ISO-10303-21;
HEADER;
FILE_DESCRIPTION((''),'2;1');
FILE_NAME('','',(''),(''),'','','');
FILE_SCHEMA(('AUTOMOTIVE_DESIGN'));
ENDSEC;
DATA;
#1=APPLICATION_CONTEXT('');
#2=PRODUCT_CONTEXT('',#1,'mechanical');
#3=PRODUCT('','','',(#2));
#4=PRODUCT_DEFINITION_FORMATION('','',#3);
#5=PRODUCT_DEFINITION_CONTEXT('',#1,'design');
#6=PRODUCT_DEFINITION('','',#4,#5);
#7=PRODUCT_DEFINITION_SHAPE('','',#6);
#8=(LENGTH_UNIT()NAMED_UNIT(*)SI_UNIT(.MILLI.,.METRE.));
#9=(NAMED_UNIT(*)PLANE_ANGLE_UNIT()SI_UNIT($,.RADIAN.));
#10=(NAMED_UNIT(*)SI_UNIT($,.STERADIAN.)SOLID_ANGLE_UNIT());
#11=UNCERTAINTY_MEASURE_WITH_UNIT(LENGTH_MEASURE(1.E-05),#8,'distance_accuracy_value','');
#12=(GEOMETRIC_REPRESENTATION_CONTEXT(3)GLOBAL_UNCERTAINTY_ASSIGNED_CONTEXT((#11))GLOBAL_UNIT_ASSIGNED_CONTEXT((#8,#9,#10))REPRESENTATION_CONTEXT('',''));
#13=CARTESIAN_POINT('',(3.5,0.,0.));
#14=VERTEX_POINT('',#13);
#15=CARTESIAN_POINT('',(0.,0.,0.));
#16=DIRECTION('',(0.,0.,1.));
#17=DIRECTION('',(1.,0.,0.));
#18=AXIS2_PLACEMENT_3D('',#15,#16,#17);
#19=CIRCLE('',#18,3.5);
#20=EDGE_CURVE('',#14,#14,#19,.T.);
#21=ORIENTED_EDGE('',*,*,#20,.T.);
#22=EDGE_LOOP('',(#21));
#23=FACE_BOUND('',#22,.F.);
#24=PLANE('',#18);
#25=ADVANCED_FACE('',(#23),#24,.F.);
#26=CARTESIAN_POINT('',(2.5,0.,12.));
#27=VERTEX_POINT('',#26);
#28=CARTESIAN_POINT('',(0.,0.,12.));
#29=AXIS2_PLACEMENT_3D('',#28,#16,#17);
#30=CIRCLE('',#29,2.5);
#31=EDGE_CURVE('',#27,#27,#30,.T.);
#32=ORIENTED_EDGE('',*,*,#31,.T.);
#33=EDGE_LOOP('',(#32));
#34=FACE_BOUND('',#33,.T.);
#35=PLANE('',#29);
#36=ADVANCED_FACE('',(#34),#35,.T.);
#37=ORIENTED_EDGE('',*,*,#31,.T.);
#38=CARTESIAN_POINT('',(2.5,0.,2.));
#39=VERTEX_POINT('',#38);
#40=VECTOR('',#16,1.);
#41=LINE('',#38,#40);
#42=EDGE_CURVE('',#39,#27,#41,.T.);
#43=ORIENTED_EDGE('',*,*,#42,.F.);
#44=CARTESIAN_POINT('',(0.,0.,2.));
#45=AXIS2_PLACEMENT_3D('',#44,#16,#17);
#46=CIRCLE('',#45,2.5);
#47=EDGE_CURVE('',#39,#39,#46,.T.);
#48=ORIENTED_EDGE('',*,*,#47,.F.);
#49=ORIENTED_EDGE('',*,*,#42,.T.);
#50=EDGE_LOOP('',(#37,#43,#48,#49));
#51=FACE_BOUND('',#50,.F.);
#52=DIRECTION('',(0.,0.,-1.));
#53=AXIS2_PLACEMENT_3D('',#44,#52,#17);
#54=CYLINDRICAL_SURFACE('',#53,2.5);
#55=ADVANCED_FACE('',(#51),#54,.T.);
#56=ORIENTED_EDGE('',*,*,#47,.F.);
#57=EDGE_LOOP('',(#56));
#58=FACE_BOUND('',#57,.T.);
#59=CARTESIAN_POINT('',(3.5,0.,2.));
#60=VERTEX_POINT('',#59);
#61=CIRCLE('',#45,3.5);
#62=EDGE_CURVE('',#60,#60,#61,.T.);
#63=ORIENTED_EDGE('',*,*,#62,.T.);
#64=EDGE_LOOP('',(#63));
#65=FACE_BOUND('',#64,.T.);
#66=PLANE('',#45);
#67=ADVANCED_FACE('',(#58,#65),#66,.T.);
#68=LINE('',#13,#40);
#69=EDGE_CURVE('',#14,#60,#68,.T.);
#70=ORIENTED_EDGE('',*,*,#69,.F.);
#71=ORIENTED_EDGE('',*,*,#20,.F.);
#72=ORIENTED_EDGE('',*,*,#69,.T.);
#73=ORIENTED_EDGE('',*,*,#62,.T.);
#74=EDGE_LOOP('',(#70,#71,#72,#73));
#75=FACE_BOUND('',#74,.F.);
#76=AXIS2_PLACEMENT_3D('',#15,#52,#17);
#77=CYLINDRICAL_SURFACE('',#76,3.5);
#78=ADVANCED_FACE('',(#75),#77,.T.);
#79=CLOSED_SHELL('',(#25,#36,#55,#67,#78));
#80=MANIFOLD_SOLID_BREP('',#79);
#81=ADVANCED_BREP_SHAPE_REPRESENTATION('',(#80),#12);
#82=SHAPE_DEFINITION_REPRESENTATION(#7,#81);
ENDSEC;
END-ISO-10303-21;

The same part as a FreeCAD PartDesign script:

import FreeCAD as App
import Part
import Sketcher
from FreeCAD import Vector

doc = App.newDocument("Part")
params = doc.addObject("Spreadsheet::Sheet", "Params")
for row, (alias, value) in enumerate([
    ("sketch1_diameter", "7 mm"),
    ("pad1_length", "2 mm"),
    ("sketch2_diameter", "5 mm"),
    ("pad2_length", "10 mm"),
], start=1):
    params.set(f"A{row}", alias)
    params.set(f"B{row}", "=" + value)
    params.setAlias(f"B{row}", alias)

body = doc.addObject("PartDesign::Body", "Body")

sketch1 = doc.addObject("Sketcher::SketchObject", "Sketch")
body.addObject(sketch1)
sketch1.AttachmentSupport = (doc.XY_Plane, [""])
sketch1.MapMode = "FlatFace"
sketch1.addGeometry(Part.Circle(Vector(0, 0, 0), Vector(0, 0, 1), 3.5), False)
sketch1.addConstraint([
    Sketcher.Constraint("Coincident", 0, 3, -1, 1),
    Sketcher.Constraint("Diameter", 0, 7.0),
])
sketch1.setExpression("Constraints[1]", "Params.sketch1_diameter")
pad1 = doc.addObject("PartDesign::Pad", "Pad")
body.addObject(pad1)
pad1.Profile = sketch1
pad1.setExpression("Length", "Params.pad1_length")

sketch2 = doc.addObject("Sketcher::SketchObject", "Sketch001")
body.addObject(sketch2)
sketch2.AttachmentSupport = (doc.XY_Plane, [""])
sketch2.MapMode = "FlatFace"
sketch2.AttachmentOffset = App.Placement(Vector(0, 0, 2), App.Rotation())
sketch2.addGeometry(Part.Circle(Vector(0, 0, 0), Vector(0, 0, 1), 2.5), False)
sketch2.addConstraint([
    Sketcher.Constraint("Coincident", 0, 3, -1, 1),
    Sketcher.Constraint("Diameter", 0, 5.0),
])
sketch2.setExpression("Constraints[1]", "Params.sketch2_diameter")
pad2 = doc.addObject("PartDesign::Pad", "Pad001")
body.addObject(pad2)
pad2.Profile = sketch2
pad2.setExpression("Length", "Params.pad2_length")

doc.recompute()
